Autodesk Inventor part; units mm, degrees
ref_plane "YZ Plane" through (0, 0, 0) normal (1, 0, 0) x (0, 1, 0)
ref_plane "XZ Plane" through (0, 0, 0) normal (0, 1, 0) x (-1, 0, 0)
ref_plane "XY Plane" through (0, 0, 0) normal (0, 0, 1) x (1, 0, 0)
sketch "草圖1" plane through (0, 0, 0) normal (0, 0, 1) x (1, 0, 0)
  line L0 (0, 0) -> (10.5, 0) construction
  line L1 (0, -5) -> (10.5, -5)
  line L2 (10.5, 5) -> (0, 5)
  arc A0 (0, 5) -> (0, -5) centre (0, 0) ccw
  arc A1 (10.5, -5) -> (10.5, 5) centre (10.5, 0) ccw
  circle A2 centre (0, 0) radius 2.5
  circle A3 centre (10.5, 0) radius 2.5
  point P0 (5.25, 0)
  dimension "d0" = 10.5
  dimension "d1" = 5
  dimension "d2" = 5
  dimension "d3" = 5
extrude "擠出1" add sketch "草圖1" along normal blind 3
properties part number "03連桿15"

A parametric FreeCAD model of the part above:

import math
import FreeCAD as App
import Part
import Sketcher
from FreeCAD import Vector
Q = App.Units.Quantity

doc = App.newDocument("Part")
body = doc.addObject("PartDesign::Body", "Body")

# Sketch on XY plane
sketch1 = doc.addObject("Sketcher::SketchObject", "Sketch")
body.addObject(sketch1)
sketch1.AttachmentSupport = (doc.XY_Plane, [""])
sketch1.MapMode = "FlatFace"
sketch1.addGeometry(Part.ArcOfCircle(Part.Circle(Vector(0, 0, 0), Vector(0, 0, 1), 5), math.radians(90), math.radians(270)), False)
sketch1.addGeometry(Part.LineSegment(Vector(0, -5, 0), Vector(10.5, -5, 0)), False)
sketch1.addGeometry(Part.ArcOfCircle(Part.Circle(Vector(10.5, 0, 0), Vector(0, 0, 1), 5), math.radians(-90), math.radians(90)), False)
sketch1.addGeometry(Part.LineSegment(Vector(10.5, 5, 0), Vector(0, 5, 0)), False)
sketch1.addGeometry(Part.Circle(Vector(0, 0, 0), Vector(0, 0, 1), 2.5), False)
sketch1.addGeometry(Part.Circle(Vector(10.5, 0, 0), Vector(0, 0, 1), 2.5), False)
sketch1.addConstraint(Sketcher.Constraint("Tangent", 0, 2, 1, 1))
sketch1.addConstraint(Sketcher.Constraint("Tangent", 1, 2, 2, 1))
sketch1.addConstraint(Sketcher.Constraint("Tangent", 2, 2, 3, 1))
sketch1.addConstraint(Sketcher.Constraint("Tangent", 3, 2, 0, 1))
sketch1.addConstraint(Sketcher.Constraint("Horizontal", 1))
sketch1.addConstraint(Sketcher.Constraint("Horizontal", 3))
sketch1.addConstraint(Sketcher.Constraint("Coincident", 0, 3, -1, 1))
sketch1.addConstraint(Sketcher.Constraint("Coincident", 4, 3, -1, 1))
sketch1.addConstraint(Sketcher.Constraint("Coincident", 5, 3, 2, 3))
sketch1.addConstraint(Sketcher.Constraint("Equal", 4, 5))
sketch1.addConstraint(Sketcher.Constraint("Diameter", 4, Q("5 mm")))
sketch1.addConstraint(Sketcher.Constraint("Radius", 0, Q("5 mm")))
sketch1.addConstraint(Sketcher.Constraint("DistanceX", 1, 1, 1, 2, Q("10.5 mm")))
pad1 = doc.addObject("PartDesign::Pad", "Pad")
body.addObject(pad1)
pad1.Profile = sketch1
pad1.Length = 3

doc.recompute()
